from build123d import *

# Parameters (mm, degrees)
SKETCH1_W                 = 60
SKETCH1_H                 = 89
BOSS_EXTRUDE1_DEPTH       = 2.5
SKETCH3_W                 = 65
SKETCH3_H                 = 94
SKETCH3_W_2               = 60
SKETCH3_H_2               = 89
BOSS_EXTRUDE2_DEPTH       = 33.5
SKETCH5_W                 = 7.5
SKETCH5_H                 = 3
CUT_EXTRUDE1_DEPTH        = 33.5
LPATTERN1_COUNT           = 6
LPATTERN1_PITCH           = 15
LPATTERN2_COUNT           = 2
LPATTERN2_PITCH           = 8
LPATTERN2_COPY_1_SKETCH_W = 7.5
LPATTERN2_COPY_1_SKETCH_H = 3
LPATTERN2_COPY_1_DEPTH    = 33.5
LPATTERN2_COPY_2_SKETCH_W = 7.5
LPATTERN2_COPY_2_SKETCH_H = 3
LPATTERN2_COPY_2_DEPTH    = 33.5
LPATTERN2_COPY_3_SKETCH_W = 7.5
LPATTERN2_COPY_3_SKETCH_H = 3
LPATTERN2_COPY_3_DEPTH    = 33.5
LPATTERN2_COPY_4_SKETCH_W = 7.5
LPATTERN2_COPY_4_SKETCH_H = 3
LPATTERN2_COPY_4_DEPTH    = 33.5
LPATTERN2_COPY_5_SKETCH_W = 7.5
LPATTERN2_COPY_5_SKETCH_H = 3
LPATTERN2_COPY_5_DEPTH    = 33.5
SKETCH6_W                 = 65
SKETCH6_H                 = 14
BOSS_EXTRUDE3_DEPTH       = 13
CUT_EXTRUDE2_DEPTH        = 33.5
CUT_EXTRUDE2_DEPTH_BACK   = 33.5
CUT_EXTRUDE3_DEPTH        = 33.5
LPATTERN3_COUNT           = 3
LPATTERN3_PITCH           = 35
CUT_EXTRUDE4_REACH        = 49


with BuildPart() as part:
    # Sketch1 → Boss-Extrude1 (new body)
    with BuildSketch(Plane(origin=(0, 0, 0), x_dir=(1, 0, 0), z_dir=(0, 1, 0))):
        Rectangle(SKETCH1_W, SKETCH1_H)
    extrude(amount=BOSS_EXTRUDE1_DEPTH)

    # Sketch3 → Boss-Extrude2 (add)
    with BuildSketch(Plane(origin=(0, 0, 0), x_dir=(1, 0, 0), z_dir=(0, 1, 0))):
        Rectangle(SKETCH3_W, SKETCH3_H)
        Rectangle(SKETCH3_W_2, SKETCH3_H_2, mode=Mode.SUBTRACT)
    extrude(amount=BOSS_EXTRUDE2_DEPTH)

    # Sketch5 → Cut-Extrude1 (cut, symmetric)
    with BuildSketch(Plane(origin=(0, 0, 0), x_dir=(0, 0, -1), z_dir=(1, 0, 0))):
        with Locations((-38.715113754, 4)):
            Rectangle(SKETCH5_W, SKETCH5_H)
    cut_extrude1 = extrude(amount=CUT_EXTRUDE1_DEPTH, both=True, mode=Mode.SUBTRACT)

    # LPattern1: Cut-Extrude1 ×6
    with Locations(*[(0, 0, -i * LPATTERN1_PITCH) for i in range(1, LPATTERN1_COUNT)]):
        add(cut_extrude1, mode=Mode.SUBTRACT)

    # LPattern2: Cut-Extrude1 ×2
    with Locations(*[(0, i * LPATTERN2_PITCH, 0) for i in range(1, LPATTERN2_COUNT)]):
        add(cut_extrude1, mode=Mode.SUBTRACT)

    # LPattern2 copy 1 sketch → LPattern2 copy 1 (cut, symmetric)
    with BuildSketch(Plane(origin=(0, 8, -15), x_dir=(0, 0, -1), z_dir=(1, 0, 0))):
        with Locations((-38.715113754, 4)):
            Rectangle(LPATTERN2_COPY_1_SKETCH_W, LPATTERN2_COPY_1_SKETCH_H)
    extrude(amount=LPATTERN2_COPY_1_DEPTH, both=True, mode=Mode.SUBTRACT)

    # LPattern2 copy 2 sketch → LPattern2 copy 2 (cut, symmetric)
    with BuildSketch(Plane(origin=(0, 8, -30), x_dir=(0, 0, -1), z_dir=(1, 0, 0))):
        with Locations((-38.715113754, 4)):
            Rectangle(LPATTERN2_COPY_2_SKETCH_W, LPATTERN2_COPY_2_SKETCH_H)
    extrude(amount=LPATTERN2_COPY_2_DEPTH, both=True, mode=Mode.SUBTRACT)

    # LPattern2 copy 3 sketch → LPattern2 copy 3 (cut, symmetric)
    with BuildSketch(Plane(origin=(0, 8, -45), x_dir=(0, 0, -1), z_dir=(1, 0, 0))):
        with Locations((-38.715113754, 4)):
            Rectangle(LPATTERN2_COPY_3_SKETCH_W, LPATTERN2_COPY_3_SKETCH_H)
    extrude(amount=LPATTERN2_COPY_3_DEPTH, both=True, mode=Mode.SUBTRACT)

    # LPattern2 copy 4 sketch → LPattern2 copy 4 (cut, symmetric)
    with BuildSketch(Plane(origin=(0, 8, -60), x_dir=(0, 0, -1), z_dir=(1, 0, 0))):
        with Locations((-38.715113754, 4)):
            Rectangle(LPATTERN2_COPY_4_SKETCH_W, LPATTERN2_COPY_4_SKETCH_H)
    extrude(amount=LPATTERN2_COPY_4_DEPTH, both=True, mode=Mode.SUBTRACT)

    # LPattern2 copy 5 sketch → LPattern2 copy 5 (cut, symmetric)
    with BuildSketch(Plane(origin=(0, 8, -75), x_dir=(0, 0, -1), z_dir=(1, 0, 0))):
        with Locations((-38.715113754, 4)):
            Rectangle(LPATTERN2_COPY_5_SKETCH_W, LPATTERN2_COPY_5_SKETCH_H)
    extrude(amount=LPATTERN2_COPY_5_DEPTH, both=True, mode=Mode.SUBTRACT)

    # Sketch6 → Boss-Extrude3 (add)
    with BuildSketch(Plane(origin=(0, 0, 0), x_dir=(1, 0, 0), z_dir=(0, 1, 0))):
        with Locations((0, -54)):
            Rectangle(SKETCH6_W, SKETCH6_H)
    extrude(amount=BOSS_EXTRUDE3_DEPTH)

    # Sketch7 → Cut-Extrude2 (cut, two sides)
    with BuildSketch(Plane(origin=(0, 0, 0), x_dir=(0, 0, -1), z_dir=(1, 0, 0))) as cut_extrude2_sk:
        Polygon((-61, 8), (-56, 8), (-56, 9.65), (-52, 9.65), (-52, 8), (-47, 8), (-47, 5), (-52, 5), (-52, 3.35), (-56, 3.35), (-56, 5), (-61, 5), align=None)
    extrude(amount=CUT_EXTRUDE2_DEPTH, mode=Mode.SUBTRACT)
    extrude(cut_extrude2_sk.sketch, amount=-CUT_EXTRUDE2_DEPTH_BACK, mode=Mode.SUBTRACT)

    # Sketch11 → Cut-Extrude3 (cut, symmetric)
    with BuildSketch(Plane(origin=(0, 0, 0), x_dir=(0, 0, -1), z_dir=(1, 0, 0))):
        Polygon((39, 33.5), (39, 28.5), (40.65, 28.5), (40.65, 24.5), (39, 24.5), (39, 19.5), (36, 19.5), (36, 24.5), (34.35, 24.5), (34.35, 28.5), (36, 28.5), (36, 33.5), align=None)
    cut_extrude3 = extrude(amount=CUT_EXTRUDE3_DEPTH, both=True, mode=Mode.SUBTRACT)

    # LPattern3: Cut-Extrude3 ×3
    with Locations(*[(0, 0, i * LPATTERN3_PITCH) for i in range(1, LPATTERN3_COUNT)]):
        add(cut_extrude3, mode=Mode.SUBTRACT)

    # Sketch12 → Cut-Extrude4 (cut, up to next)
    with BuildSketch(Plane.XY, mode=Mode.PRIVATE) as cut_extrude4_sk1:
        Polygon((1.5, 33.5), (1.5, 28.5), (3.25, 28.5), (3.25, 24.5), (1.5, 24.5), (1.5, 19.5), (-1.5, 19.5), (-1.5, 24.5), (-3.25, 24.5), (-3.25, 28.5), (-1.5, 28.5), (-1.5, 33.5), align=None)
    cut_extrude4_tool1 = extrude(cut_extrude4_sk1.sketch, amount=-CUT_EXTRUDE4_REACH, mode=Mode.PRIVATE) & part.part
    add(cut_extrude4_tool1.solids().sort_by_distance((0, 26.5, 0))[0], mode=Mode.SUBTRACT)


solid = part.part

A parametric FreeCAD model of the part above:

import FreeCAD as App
import Part
import Sketcher

V = App.Vector


def add_polygon(sketch, points):
    """Adds a closed chain of lines whose ends are joined by coincident constraints."""
    first, n = sketch.GeometryCount, len(points)
    for a, b in zip(points, points[1:] + points[:1]):
        sketch.addGeometry(Part.LineSegment(App.Vector(*a, 0), App.Vector(*b, 0)), False)
    for i in range(n):
        sketch.addConstraint(Sketcher.Constraint("Coincident", first + i, 2, first + (i + 1) % n, 1))

doc = App.newDocument("Part")
body = doc.addObject("PartDesign::Body", "Body")

# Sketch on XZ plane
sketch1 = body.newObject("Sketcher::SketchObject", "Sketch")
sketch1.AttachmentSupport = (doc.getObject("XZ_Plane"), [""])
sketch1.MapMode = "FlatFace"
add_polygon(sketch1, [(-30, -44), (-30, 44), (30, 44), (30, -44)])  # lines 0-3
sketch1.addConstraint(Sketcher.Constraint("Vertical", 0))
sketch1.addConstraint(Sketcher.Constraint("Horizontal", 1))
sketch1.addConstraint(Sketcher.Constraint("Vertical", 2))
sketch1.addConstraint(Sketcher.Constraint("Horizontal", 3))
sketch1.addConstraint(Sketcher.Constraint("Symmetric", 0, 2, 2, 2, -1, 1))
sketch1.addConstraint(Sketcher.Constraint("DistanceX", 1, 1, 1, 2, 60.0))
sketch1.addConstraint(Sketcher.Constraint("DistanceY", 0, 1, 0, 2, 89.0))
pad1 = body.newObject("PartDesign::Pad", "Pad")
pad1.Profile = sketch1
pad1.Length = 2.5
pad1.Reversed = True

# Sketch on XZ plane
sketch2 = body.newObject("Sketcher::SketchObject", "Sketch001")
sketch2.AttachmentSupport = (doc.getObject("XZ_Plane"), [""])
sketch2.MapMode = "FlatFace"
add_polygon(sketch2, [(-32, -47), (-32, 47), (32, 47), (32, -47)])  # lines 0-3
add_polygon(sketch2, [(30, 44), (-30, 44), (-30, -44), (30, -44)])  # lines 4-7
sketch2.addConstraint(Sketcher.Constraint("Vertical", 0))
sketch2.addConstraint(Sketcher.Constraint("Horizontal", 1))
sketch2.addConstraint(Sketcher.Constraint("Vertical", 2))
sketch2.addConstraint(Sketcher.Constraint("Horizontal", 3))
sketch2.addConstraint(Sketcher.Constraint("Horizontal", 4))
sketch2.addConstraint(Sketcher.Constraint("Vertical", 5))
sketch2.addConstraint(Sketcher.Constraint("Horizontal", 6))
sketch2.addConstraint(Sketcher.Constraint("Vertical", 7))
sketch2.addConstraint(Sketcher.Constraint("Symmetric", 0, 2, 2, 2, -1, 1))
sketch2.addConstraint(Sketcher.Constraint("Symmetric", 4, 2, 6, 2, -1, 1))
sketch2.addConstraint(Sketcher.Constraint("DistanceX", 1, 1, 1, 2, 65.0))
sketch2.addConstraint(Sketcher.Constraint("DistanceX", 4, 2, 4, 1, 60.0))
sketch2.addConstraint(Sketcher.Constraint("DistanceY", 0, 1, 0, 2, 94.0))
sketch2.addConstraint(Sketcher.Constraint("DistanceY", 5, 2, 5, 1, 89.0))
pad2 = body.newObject("PartDesign::Pad", "Pad001")
pad2.Profile = sketch2
pad2.Length = 33.5
pad2.Reversed = True

# Sketch on YZ plane
sketch3 = body.newObject("Sketcher::SketchObject", "Sketch002")
sketch3.AttachmentSupport = (doc.getObject("YZ_Plane"), [""])
sketch3.MapMode = "FlatFace"
add_polygon(sketch3, [(5.5, 42.5), (2.5, 42.5), (2.5, 35), (5.5, 35)])  # lines 0-3
sketch3.addConstraint(Sketcher.Constraint("Horizontal", 0))
sketch3.addConstraint(Sketcher.Constraint("Vertical", 1))
sketch3.addConstraint(Sketcher.Constraint("Horizontal", 2))
sketch3.addConstraint(Sketcher.Constraint("Vertical", 3))
sketch3.addConstraint(Sketcher.Constraint("DistanceX", 0, 2, 0, 1, 3.0))
sketch3.addConstraint(Sketcher.Constraint("DistanceY", 1, 2, 1, 1, 7.5))
sketch3.addConstraint(Sketcher.Constraint("DistanceX", -1, 1, 0, 2, 2.5))
sketch3.addConstraint(Sketcher.Constraint("DistanceY", -1, 1, 0, 2, 42.465114))
pocket1 = body.newObject("PartDesign::Pocket", "Pocket")
pocket1.Profile = sketch3
pocket1.Length = 67
pocket1.Midplane = True
doc.recompute()

linearpattern = body.newObject("PartDesign::LinearPattern", "LinearPattern")
linearpattern.Originals = [pocket1]
linearpattern.Direction = (doc.getObject("Z_Axis"), [""])
linearpattern.Mode = "offset"
linearpattern.Offset = 15
linearpattern.Occurrences = 6
linearpattern.Reversed = True
body.Tip = linearpattern
doc.recompute()

linearpattern2 = body.newObject("PartDesign::LinearPattern", "LinearPattern001")
linearpattern2.Originals = [pocket1]
linearpattern2.Direction = (doc.getObject("Y_Axis"), [""])
linearpattern2.Mode = "offset"
linearpattern2.Offset = 8
linearpattern2.Occurrences = 2
body.Tip = linearpattern2

# Sketch on YZ plane
sketch4 = body.newObject("Sketcher::SketchObject", "Sketch003")
sketch4.AttachmentSupport = (doc.getObject("YZ_Plane"), [""])
sketch4.MapMode = "FlatFace"
add_polygon(sketch4, [(13.5, 27.5), (10.5, 27.5), (10.5, 20), (13.5, 20)])  # lines 0-3
sketch4.addConstraint(Sketcher.Constraint("Horizontal", 0))
sketch4.addConstraint(Sketcher.Constraint("Vertical", 1))
sketch4.addConstraint(Sketcher.Constraint("Horizontal", 2))
sketch4.addConstraint(Sketcher.Constraint("Vertical", 3))
sketch4.addConstraint(Sketcher.Constraint("DistanceX", 0, 2, 0, 1, 3.0))
sketch4.addConstraint(Sketcher.Constraint("DistanceY", 1, 2, 1, 1, 7.5))
sketch4.addConstraint(Sketcher.Constraint("DistanceX", -1, 1, 0, 2, 10.5))
sketch4.addConstraint(Sketcher.Constraint("DistanceY", -1, 1, 0, 2, 27.465114))
pocket2 = body.newObject("PartDesign::Pocket", "Pocket001")
pocket2.Profile = sketch4
pocket2.Length = 67
pocket2.Midplane = True

# Sketch on YZ plane
sketch5 = body.newObject("Sketcher::SketchObject", "Sketch004")
sketch5.AttachmentSupport = (doc.getObject("YZ_Plane"), [""])
sketch5.MapMode = "FlatFace"
add_polygon(sketch5, [(13.5, 12.5), (10.5, 12.5), (10.5, 5), (13.5, 5)])  # lines 0-3
sketch5.addConstraint(Sketcher.Constraint("Horizontal", 0))
sketch5.addConstraint(Sketcher.Constraint("Vertical", 1))
sketch5.addConstraint(Sketcher.Constraint("Horizontal", 2))
sketch5.addConstraint(Sketcher.Constraint("Vertical", 3))
sketch5.addConstraint(Sketcher.Constraint("DistanceX", 0, 2, 0, 1, 3.0))
sketch5.addConstraint(Sketcher.Constraint("DistanceY", 1, 2, 1, 1, 7.5))
sketch5.addConstraint(Sketcher.Constraint("DistanceX", -1, 1, 0, 2, 10.5))
sketch5.addConstraint(Sketcher.Constraint("DistanceY", -1, 1, 0, 2, 12.465114))
pocket3 = body.newObject("PartDesign::Pocket", "Pocket002")
pocket3.Profile = sketch5
pocket3.Length = 67
pocket3.Midplane = True

# Sketch on YZ plane
sketch6 = body.newObject("Sketcher::SketchObject", "Sketch005")
sketch6.AttachmentSupport = (doc.getObject("YZ_Plane"), [""])
sketch6.MapMode = "FlatFace"
add_polygon(sketch6, [(13.5, -2.5), (10.5, -2.5), (10.5, -10), (13.5, -10)])  # lines 0-3
sketch6.addConstraint(Sketcher.Constraint("Horizontal", 0))
sketch6.addConstraint(Sketcher.Constraint("Vertical", 1))
sketch6.addConstraint(Sketcher.Constraint("Horizontal", 2))
sketch6.addConstraint(Sketcher.Constraint("Vertical", 3))
sketch6.addConstraint(Sketcher.Constraint("DistanceX", 0, 2, 0, 1, 3.0))
sketch6.addConstraint(Sketcher.Constraint("DistanceY", 1, 2, 1, 1, 7.5))
sketch6.addConstraint(Sketcher.Constraint("DistanceX", -1, 1, 0, 2, 10.5))
sketch6.addConstraint(Sketcher.Constraint("DistanceY", 0, 2, -1, 1, 2.534886))
pocket4 = body.newObject("PartDesign::Pocket", "Pocket003")
pocket4.Profile = sketch6
pocket4.Length = 67
pocket4.Midplane = True

# Sketch on YZ plane
sketch7 = body.newObject("Sketcher::SketchObject", "Sketch006")
sketch7.AttachmentSupport = (doc.getObject("YZ_Plane"), [""])
sketch7.MapMode = "FlatFace"
add_polygon(sketch7, [(13.5, -17.5), (10.5, -17.5), (10.5, -25), (13.5, -25)])  # lines 0-3
sketch7.addConstraint(Sketcher.Constraint("Horizontal", 0))
sketch7.addConstraint(Sketcher.Constraint("Vertical", 1))
sketch7.addConstraint(Sketcher.Constraint("Horizontal", 2))
sketch7.addConstraint(Sketcher.Constraint("Vertical", 3))
sketch7.addConstraint(Sketcher.Constraint("DistanceX", 0, 2, 0, 1, 3.0))
sketch7.addConstraint(Sketcher.Constraint("DistanceY", 1, 2, 1, 1, 7.5))
sketch7.addConstraint(Sketcher.Constraint("DistanceX", -1, 1, 0, 2, 10.5))
sketch7.addConstraint(Sketcher.Constraint("DistanceY", 0, 2, -1, 1, 17.534886))
pocket5 = body.newObject("PartDesign::Pocket", "Pocket004")
pocket5.Profile = sketch7
pocket5.Length = 67
pocket5.Midplane = True

# Sketch on YZ plane
sketch8 = body.newObject("Sketcher::SketchObject", "Sketch007")
sketch8.AttachmentSupport = (doc.getObject("YZ_Plane"), [""])
sketch8.MapMode = "FlatFace"
add_polygon(sketch8, [(13.5, -32.5), (10.5, -32.5), (10.5, -40), (13.5, -40)])  # lines 0-3
sketch8.addConstraint(Sketcher.Constraint("Horizontal", 0))
sketch8.addConstraint(Sketcher.Constraint("Vertical", 1))
sketch8.addConstraint(Sketcher.Constraint("Horizontal", 2))
sketch8.addConstraint(Sketcher.Constraint("Vertical", 3))
sketch8.addConstraint(Sketcher.Constraint("DistanceX", 0, 2, 0, 1, 3.0))
sketch8.addConstraint(Sketcher.Constraint("DistanceY", 1, 2, 1, 1, 7.5))
sketch8.addConstraint(Sketcher.Constraint("DistanceX", -1, 1, 0, 2, 10.5))
sketch8.addConstraint(Sketcher.Constraint("DistanceY", 0, 2, -1, 1, 32.534886))
pocket6 = body.newObject("PartDesign::Pocket", "Pocket005")
pocket6.Profile = sketch8
pocket6.Length = 67
pocket6.Midplane = True

# Sketch on XZ plane
sketch9 = body.newObject("Sketcher::SketchObject", "Sketch008")
sketch9.AttachmentSupport = (doc.getObject("XZ_Plane"), [""])
sketch9.MapMode = "FlatFace"
add_polygon(sketch9, [(-32, 47), (-32, 61), (32, 61), (32, 47)])  # lines 0-3
sketch9.addConstraint(Sketcher.Constraint("Vertical", 0))
sketch9.addConstraint(Sketcher.Constraint("Horizontal", 1))
sketch9.addConstraint(Sketcher.Constraint("Vertical", 2))
sketch9.addConstraint(Sketcher.Constraint("Horizontal", 3))
sketch9.addConstraint(Sketcher.Constraint("DistanceX", 1, 1, 1, 2, 65.0))
sketch9.addConstraint(Sketcher.Constraint("DistanceY", 0, 1, 0, 2, 14.0))
sketch9.addConstraint(Sketcher.Constraint("DistanceY", -1, 1, 0, 2, 61.0))
sketch9.addConstraint(Sketcher.Constraint("DistanceX", 0, 2, -1, 1, 32.5))
pad3 = body.newObject("PartDesign::Pad", "Pad002")
pad3.Profile = sketch9
pad3.Length = 13
pad3.Reversed = True

# Sketch on YZ plane
sketch10 = body.newObject("Sketcher::SketchObject", "Sketch009")
sketch10.AttachmentSupport = (doc.getObject("YZ_Plane"), [""])
sketch10.MapMode = "FlatFace"
add_polygon(sketch10, [(8, 56), (8, 61), (5, 61), (5, 56), (3.4, 56), (3.4, 52), (5, 52), (5, 47), (8, 47), (8, 52), (9.7, 52), (9.7, 56)])  # lines 0-11
sketch10.addConstraint(Sketcher.Constraint("Vertical", 0))
sketch10.addConstraint(Sketcher.Constraint("Horizontal", 1))
sketch10.addConstraint(Sketcher.Constraint("Vertical", 2))
sketch10.addConstraint(Sketcher.Constraint("Horizontal", 3))
sketch10.addConstraint(Sketcher.Constraint("Vertical", 4))
sketch10.addConstraint(Sketcher.Constraint("Horizontal", 5))
sketch10.addConstraint(Sketcher.Constraint("Vertical", 6))
sketch10.addConstraint(Sketcher.Constraint("Horizontal", 7))
sketch10.addConstraint(Sketcher.Constraint("Vertical", 8))
sketch10.addConstraint(Sketcher.Constraint("Horizontal", 9))
sketch10.addConstraint(Sketcher.Constraint("Vertical", 10))
sketch10.addConstraint(Sketcher.Constraint("Horizontal", 11))
sketch10.addConstraint(Sketcher.Constraint("Horizontal", 5, 2, 8, 2))
sketch10.addConstraint(Sketcher.Constraint("Horizontal", 3, 2, 10, 2))
sketch10.addConstraint(Sketcher.Constraint("Vertical", 2, 2, 5, 2))
sketch10.addConstraint(Sketcher.Constraint("Vertical", 0, 2, 7, 2))
sketch10.addConstraint(Sketcher.Constraint("Equal", 5, 9))
sketch10.addConstraint(Sketcher.Constraint("Equal", 2, 6))
sketch10.addConstraint(Sketcher.Constraint("DistanceX", 1, 2, 1, 1, 3.0))
sketch10.addConstraint(Sketcher.Constraint("DistanceY", 0, 1, 0, 2, 5.0))
sketch10.addConstraint(Sketcher.Constraint("DistanceY", 4, 2, 4, 1, 4.0))
sketch10.addConstraint(Sketcher.Constraint("DistanceX", -1, 1, 0, 2, 8.0))
sketch10.addConstraint(Sketcher.Constraint("DistanceY", -1, 1, 0, 2, 61.0))
sketch10.addConstraint(Sketcher.Constraint("DistanceX", 3, 2, 3, 1, 1.65))
pocket7 = body.newObject("PartDesign::Pocket", "Pocket006")
pocket7.Profile = sketch10
pocket7.Type = "ThroughAll"
pocket7.Midplane = True

# Sketch on YZ plane
sketch11 = body.newObject("Sketcher::SketchObject", "Sketch010")
sketch11.AttachmentSupport = (doc.getObject("YZ_Plane"), [""])
sketch11.MapMode = "FlatFace"
add_polygon(sketch11, [(28.5, -39), (33.5, -39), (33.5, -36), (28.5, -36), (28.5, -34.4), (24.5, -34.4), (24.5, -36), (19.5, -36), (19.5, -39), (24.5, -39), (24.5, -40.6), (28.5, -40.6)])  # lines 0-11
sketch11.addConstraint(Sketcher.Constraint("Horizontal", 0))
sketch11.addConstraint(Sketcher.Constraint("Vertical", 1))
sketch11.addConstraint(Sketcher.Constraint("Horizontal", 2))
sketch11.addConstraint(Sketcher.Constraint("Vertical", 3))
sketch11.addConstraint(Sketcher.Constraint("Horizontal", 4))
sketch11.addConstraint(Sketcher.Constraint("Vertical", 5))
sketch11.addConstraint(Sketcher.Constraint("Horizontal", 6))
sketch11.addConstraint(Sketcher.Constraint("Vertical", 7))
sketch11.addConstraint(Sketcher.Constraint("Horizontal", 8))
sketch11.addConstraint(Sketcher.Constraint("Vertical", 9))
sketch11.addConstraint(Sketcher.Constraint("Horizontal", 10))
sketch11.addConstraint(Sketcher.Constraint("Vertical", 11))
sketch11.addConstraint(Sketcher.Constraint("Horizontal", 2, 2, 5, 2))
sketch11.addConstraint(Sketcher.Constraint("Horizontal", 0, 2, 7, 2))
sketch11.addConstraint(Sketcher.Constraint("Vertical", 5, 2, 8, 2))
sketch11.addConstraint(Sketcher.Constraint("Vertical", 3, 2, 10, 2))
sketch11.addConstraint(Sketcher.Constraint("Equal", 2, 6))
sketch11.addConstraint(Sketcher.Constraint("Equal", 5, 9))
sketch11.addConstraint(Sketcher.Constraint("DistanceX", 0, 1, 0, 2, 5.0))
sketch11.addConstraint(Sketcher.Constraint("DistanceX", 4, 2, 4, 1, 4.0))
sketch11.addConstraint(Sketcher.Constraint("DistanceY", 1, 1, 1, 2, 3.0))
sketch11.addConstraint(Sketcher.Constraint("DistanceY", 0, 2, -1, 1, 39.0))
sketch11.addConstraint(Sketcher.Constraint("DistanceY", 3, 1, 3, 2, 1.65))
sketch11.addConstraint(Sketcher.Constraint("DistanceX", -1, 1, 0, 2, 33.5))
pocket8 = body.newObject("PartDesign::Pocket", "Pocket007")
pocket8.Profile = sketch11
pocket8.Length = 67
pocket8.Midplane = True
doc.recompute()

linearpattern3 = body.newObject("PartDesign::LinearPattern", "LinearPattern002")
linearpattern3.Originals = [pocket8]
linearpattern3.Direction = (doc.getObject("Z_Axis"), [""])
linearpattern3.Mode = "offset"
linearpattern3.Offset = 35
linearpattern3.Occurrences = 3
body.Tip = linearpattern3

# Sketch on XY plane
sketch12 = body.newObject("Sketcher::SketchObject", "Sketch011")
sketch12.AttachmentSupport = (doc.getObject("XY_Plane"), [""])
sketch12.MapMode = "FlatFace"
add_polygon(sketch12, [(1.5, 28.5), (1.5, 33.5), (-1.5, 33.5), (-1.5, 28.5), (-3.2, 28.5), (-3.2, 24.5), (-1.5, 24.5), (-1.5, 19.5), (1.5, 19.5), (1.5, 24.5), (3.2, 24.5), (3.2, 28.5)])  # lines 0-11
sketch12.addConstraint(Sketcher.Constraint("Vertical", 0))
sketch12.addConstraint(Sketcher.Constraint("Horizontal", 1))
sketch12.addConstraint(Sketcher.Constraint("Vertical", 2))
sketch12.addConstraint(Sketcher.Constraint("Horizontal", 3))
sketch12.addConstraint(Sketcher.Constraint("Vertical", 4))
sketch12.addConstraint(Sketcher.Constraint("Horizontal", 5))
sketch12.addConstraint(Sketcher.Constraint("Vertical", 6))
sketch12.addConstraint(Sketcher.Constraint("Horizontal", 7))
sketch12.addConstraint(Sketcher.Constraint("Vertical", 8))
sketch12.addConstraint(Sketcher.Constraint("Horizontal", 9))
sketch12.addConstraint(Sketcher.Constraint("Vertical", 10))
sketch12.addConstraint(Sketcher.Constraint("Horizontal", 11))
sketch12.addConstraint(Sketcher.Constraint("Symmetric", 5, 2, 8, 2, -2))
sketch12.addConstraint(Sketcher.Constraint("Symmetric", 3, 2, 10, 2, -2))
sketch12.addConstraint(Sketcher.Constraint("Vertical", 2, 2, 5, 2))
sketch12.addConstraint(Sketcher.Constraint("Vertical", 0, 2, 7, 2))
sketch12.addConstraint(Sketcher.Constraint("Equal", 2, 6))
sketch12.addConstraint(Sketcher.Constraint("DistanceX", 1, 2, 1, 1, 3.0))
sketch12.addConstraint(Sketcher.Constraint("DistanceY", 0, 1, 0, 2, 5.0))
sketch12.addConstraint(Sketcher.Constraint("DistanceY", 4, 2, 4, 1, 4.0))
sketch12.addConstraint(Sketcher.Constraint("DistanceX", 3, 2, 3, 1, 1.75))
sketch12.addConstraint(Sketcher.Constraint("DistanceY", -1, 1, 0, 2, 33.5))
pocket9 = body.newObject("PartDesign::Pocket", "Pocket008")
pocket9.Profile = sketch12
pocket9.Length = 47

doc.recompute()
